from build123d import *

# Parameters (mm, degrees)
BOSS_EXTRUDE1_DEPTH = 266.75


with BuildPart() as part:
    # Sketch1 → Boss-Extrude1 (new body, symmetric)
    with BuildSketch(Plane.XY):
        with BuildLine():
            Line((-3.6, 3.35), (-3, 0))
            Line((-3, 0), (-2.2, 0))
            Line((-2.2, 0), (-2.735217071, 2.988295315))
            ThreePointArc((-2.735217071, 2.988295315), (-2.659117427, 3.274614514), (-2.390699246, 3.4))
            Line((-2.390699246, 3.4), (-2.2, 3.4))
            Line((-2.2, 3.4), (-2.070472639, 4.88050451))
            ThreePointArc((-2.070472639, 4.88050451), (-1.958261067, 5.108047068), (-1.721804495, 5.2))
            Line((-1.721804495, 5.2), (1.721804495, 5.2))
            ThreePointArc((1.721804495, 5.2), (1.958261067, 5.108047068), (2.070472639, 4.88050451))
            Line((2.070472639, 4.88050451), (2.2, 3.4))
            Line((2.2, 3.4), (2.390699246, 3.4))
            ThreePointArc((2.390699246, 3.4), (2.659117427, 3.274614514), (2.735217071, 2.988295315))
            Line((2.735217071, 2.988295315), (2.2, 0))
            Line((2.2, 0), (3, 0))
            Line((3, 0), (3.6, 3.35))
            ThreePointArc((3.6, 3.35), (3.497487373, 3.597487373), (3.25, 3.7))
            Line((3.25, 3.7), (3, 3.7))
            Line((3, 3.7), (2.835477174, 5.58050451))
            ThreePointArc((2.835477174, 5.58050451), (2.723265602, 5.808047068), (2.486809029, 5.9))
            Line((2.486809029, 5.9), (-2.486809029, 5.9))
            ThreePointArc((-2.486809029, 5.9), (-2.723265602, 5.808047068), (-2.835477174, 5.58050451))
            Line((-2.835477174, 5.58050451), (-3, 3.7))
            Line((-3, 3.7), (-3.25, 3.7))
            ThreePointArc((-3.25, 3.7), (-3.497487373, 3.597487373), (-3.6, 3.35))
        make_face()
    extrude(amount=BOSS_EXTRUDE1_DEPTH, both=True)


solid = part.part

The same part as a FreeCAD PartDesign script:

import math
import FreeCAD as App
import Part
import Sketcher

V = App.Vector
Q = App.Units.Quantity

doc = App.newDocument("Part")
body = doc.addObject("PartDesign::Body", "Body")

sketch1 = doc.addObject("Sketcher::SketchObject", "Sketch")
body.addObject(sketch1)
sketch1.AttachmentSupport = (doc.XY_Plane, [""])
sketch1.MapMode = "FlatFace"
sketch1.addGeometry([
    Part.LineSegment(V(-3.6, 3.35, 0), V(-3, 0, 0)),
    Part.LineSegment(V(-3, 0, 0), V(-2.2, 0, 0)),
    Part.LineSegment(V(-2.2, 0, 0), V(-2.74, 2.99, 0)),
    Part.ArcOfCircle(Part.Circle(V(-2.39, 3.05, 0), V(0, 0, 1), 0.35), math.radians(90), math.radians(190)),
    Part.LineSegment(V(-2.39, 3.4, 0), V(-2.2, 3.4, 0)),
    Part.LineSegment(V(-2.2, 3.4, 0), V(-2.07, 4.88, 0)),
    Part.ArcOfCircle(Part.Circle(V(-1.72, 4.85, 0), V(0, 0, 1), 0.35), math.radians(90), math.radians(175)),
    Part.LineSegment(V(-1.72, 5.2, 0), V(1.72, 5.2, 0)),
    Part.ArcOfCircle(Part.Circle(V(1.72, 4.85, 0), V(0, 0, 1), 0.35), math.radians(5), math.radians(90)),
    Part.LineSegment(V(2.07, 4.88, 0), V(2.2, 3.4, 0)),
    Part.LineSegment(V(2.2, 3.4, 0), V(2.39, 3.4, 0)),
    Part.ArcOfCircle(Part.Circle(V(2.39, 3.05, 0), V(0, 0, 1), 0.35), math.radians(-10), math.radians(90)),
    Part.LineSegment(V(2.74, 2.99, 0), V(2.2, 0, 0)),
    Part.LineSegment(V(2.2, 0, 0), V(3, 0, 0)),
    Part.LineSegment(V(3, 0, 0), V(3.6, 3.35, 0)),
    Part.ArcOfCircle(Part.Circle(V(3.25, 3.35, 0), V(0, 0, 1), 0.35), math.radians(0), math.radians(90)),
    Part.LineSegment(V(3.25, 3.7, 0), V(3, 3.7, 0)),
    Part.LineSegment(V(3, 3.7, 0), V(2.84, 5.58, 0)),
    Part.ArcOfCircle(Part.Circle(V(2.49, 5.55, 0), V(0, 0, 1), 0.35), math.radians(5), math.radians(90)),
    Part.LineSegment(V(2.49, 5.9, 0), V(-2.49, 5.9, 0)),
    Part.ArcOfCircle(Part.Circle(V(-2.49, 5.55, 0), V(0, 0, 1), 0.35), math.radians(90), math.radians(175)),
    Part.LineSegment(V(-2.84, 5.58, 0), V(-3, 3.7, 0)),
    Part.LineSegment(V(-3, 3.7, 0), V(-3.25, 3.7, 0)),
    Part.ArcOfCircle(Part.Circle(V(-3.25, 3.35, 0), V(0, 0, 1), 0.35), math.radians(90), math.radians(180)),
], False)
sketch1.addConstraint([
    Sketcher.Constraint("Coincident", 0, 2, 1, 1),
    Sketcher.Constraint("Coincident", 1, 2, 2, 1),
    Sketcher.Constraint("Tangent", 2, 2, 3, 2),
    Sketcher.Constraint("Tangent", 3, 1, 4, 1),
    Sketcher.Constraint("Coincident", 4, 2, 5, 1),
    Sketcher.Constraint("Tangent", 5, 2, 6, 2),
    Sketcher.Constraint("Tangent", 6, 1, 7, 1),
    Sketcher.Constraint("Tangent", 7, 2, 8, 2),
    Sketcher.Constraint("Tangent", 8, 1, 9, 1),
    Sketcher.Constraint("Coincident", 9, 2, 10, 1),
    Sketcher.Constraint("Tangent", 10, 2, 11, 2),
    Sketcher.Constraint("Tangent", 11, 1, 12, 1),
    Sketcher.Constraint("Coincident", 12, 2, 13, 1),
    Sketcher.Constraint("Coincident", 13, 2, 14, 1),
    Sketcher.Constraint("Coincident", 14, 2, 15, 1),
    Sketcher.Constraint("Tangent", 15, 2, 16, 1),
    Sketcher.Constraint("Coincident", 16, 2, 17, 1),
    Sketcher.Constraint("Tangent", 17, 2, 18, 1),
    Sketcher.Constraint("Tangent", 18, 2, 19, 1),
    Sketcher.Constraint("Tangent", 19, 2, 20, 1),
    Sketcher.Constraint("Tangent", 20, 2, 21, 1),
    Sketcher.Constraint("Coincident", 21, 2, 22, 1),
    Sketcher.Constraint("Tangent", 22, 2, 23, 1),
    Sketcher.Constraint("Coincident", 23, 2, 0, 1),
    Sketcher.Constraint("Horizontal", 1),
    Sketcher.Constraint("Horizontal", 4),
    Sketcher.Constraint("Horizontal", 7),
    Sketcher.Constraint("Horizontal", 10),
    Sketcher.Constraint("Horizontal", 13),
    Sketcher.Constraint("Horizontal", 16),
    Sketcher.Constraint("Horizontal", 19),
    Sketcher.Constraint("Horizontal", 22),
    Sketcher.Constraint("Equal", 3, 6),
    Sketcher.Constraint("Equal", 6, 8),
    Sketcher.Constraint("Equal", 8, 11),
    Sketcher.Constraint("Equal", 11, 15),
    Sketcher.Constraint("Equal", 15, 18),
    Sketcher.Constraint("Equal", 18, 20),
    Sketcher.Constraint("Equal", 20, 23),
    Sketcher.Constraint("Symmetric", 1, 2, 12, 2, -1, 1),
    Sketcher.Constraint("Symmetric", 3, 3, 11, 3, -2),
    Sketcher.Constraint("Symmetric", 15, 3, 23, 3, -2),
    Sketcher.Constraint("Symmetric", 5, 2, 8, 1, -2),
    Sketcher.Constraint("Symmetric", 0, 2, 13, 2, -2),
    Sketcher.Constraint("Symmetric", 17, 2, 20, 2, -2),
    Sketcher.Constraint("Parallel", 0, 2),
    Sketcher.Constraint("Parallel", 12, 14),
    Sketcher.Constraint("Parallel", 9, 17),
    Sketcher.Constraint("Horizontal", 23, 3, 14, 2),
    Sketcher.Constraint("Vertical", 1, 2, 4, 2),
    Sketcher.Constraint("Vertical", 13, 2, 16, 2),
    Sketcher.Constraint("Angle", 5, Q("85 deg")),
    Sketcher.Constraint("Radius", 3, Q("0.35 mm")),
    Sketcher.Constraint("DistanceX", 1, 1, 1, 2, Q("0.8 mm")),
    Sketcher.Constraint("DistanceX", 0, 2, -1, 1, Q("3 mm")),
    Sketcher.Constraint("DistanceX", 16, 2, 16, 1, Q("0.25 mm")),
    Sketcher.Constraint("DistanceY", -1, 1, 3, 1, Q("3.4 mm")),
    Sketcher.Constraint("DistanceY", -1, 1, 6, 1, Q("5.2 mm")),
    Sketcher.Constraint("DistanceY", -1, 1, 15, 2, Q("3.7 mm")),
    Sketcher.Constraint("DistanceY", -1, 1, 18, 2, Q("5.9 mm")),
])
pad1 = doc.addObject("PartDesign::Pad", "Pad")
body.addObject(pad1)
pad1.Profile = sketch1
pad1.Length = 533.5
pad1.Midplane = True

doc.recompute()
